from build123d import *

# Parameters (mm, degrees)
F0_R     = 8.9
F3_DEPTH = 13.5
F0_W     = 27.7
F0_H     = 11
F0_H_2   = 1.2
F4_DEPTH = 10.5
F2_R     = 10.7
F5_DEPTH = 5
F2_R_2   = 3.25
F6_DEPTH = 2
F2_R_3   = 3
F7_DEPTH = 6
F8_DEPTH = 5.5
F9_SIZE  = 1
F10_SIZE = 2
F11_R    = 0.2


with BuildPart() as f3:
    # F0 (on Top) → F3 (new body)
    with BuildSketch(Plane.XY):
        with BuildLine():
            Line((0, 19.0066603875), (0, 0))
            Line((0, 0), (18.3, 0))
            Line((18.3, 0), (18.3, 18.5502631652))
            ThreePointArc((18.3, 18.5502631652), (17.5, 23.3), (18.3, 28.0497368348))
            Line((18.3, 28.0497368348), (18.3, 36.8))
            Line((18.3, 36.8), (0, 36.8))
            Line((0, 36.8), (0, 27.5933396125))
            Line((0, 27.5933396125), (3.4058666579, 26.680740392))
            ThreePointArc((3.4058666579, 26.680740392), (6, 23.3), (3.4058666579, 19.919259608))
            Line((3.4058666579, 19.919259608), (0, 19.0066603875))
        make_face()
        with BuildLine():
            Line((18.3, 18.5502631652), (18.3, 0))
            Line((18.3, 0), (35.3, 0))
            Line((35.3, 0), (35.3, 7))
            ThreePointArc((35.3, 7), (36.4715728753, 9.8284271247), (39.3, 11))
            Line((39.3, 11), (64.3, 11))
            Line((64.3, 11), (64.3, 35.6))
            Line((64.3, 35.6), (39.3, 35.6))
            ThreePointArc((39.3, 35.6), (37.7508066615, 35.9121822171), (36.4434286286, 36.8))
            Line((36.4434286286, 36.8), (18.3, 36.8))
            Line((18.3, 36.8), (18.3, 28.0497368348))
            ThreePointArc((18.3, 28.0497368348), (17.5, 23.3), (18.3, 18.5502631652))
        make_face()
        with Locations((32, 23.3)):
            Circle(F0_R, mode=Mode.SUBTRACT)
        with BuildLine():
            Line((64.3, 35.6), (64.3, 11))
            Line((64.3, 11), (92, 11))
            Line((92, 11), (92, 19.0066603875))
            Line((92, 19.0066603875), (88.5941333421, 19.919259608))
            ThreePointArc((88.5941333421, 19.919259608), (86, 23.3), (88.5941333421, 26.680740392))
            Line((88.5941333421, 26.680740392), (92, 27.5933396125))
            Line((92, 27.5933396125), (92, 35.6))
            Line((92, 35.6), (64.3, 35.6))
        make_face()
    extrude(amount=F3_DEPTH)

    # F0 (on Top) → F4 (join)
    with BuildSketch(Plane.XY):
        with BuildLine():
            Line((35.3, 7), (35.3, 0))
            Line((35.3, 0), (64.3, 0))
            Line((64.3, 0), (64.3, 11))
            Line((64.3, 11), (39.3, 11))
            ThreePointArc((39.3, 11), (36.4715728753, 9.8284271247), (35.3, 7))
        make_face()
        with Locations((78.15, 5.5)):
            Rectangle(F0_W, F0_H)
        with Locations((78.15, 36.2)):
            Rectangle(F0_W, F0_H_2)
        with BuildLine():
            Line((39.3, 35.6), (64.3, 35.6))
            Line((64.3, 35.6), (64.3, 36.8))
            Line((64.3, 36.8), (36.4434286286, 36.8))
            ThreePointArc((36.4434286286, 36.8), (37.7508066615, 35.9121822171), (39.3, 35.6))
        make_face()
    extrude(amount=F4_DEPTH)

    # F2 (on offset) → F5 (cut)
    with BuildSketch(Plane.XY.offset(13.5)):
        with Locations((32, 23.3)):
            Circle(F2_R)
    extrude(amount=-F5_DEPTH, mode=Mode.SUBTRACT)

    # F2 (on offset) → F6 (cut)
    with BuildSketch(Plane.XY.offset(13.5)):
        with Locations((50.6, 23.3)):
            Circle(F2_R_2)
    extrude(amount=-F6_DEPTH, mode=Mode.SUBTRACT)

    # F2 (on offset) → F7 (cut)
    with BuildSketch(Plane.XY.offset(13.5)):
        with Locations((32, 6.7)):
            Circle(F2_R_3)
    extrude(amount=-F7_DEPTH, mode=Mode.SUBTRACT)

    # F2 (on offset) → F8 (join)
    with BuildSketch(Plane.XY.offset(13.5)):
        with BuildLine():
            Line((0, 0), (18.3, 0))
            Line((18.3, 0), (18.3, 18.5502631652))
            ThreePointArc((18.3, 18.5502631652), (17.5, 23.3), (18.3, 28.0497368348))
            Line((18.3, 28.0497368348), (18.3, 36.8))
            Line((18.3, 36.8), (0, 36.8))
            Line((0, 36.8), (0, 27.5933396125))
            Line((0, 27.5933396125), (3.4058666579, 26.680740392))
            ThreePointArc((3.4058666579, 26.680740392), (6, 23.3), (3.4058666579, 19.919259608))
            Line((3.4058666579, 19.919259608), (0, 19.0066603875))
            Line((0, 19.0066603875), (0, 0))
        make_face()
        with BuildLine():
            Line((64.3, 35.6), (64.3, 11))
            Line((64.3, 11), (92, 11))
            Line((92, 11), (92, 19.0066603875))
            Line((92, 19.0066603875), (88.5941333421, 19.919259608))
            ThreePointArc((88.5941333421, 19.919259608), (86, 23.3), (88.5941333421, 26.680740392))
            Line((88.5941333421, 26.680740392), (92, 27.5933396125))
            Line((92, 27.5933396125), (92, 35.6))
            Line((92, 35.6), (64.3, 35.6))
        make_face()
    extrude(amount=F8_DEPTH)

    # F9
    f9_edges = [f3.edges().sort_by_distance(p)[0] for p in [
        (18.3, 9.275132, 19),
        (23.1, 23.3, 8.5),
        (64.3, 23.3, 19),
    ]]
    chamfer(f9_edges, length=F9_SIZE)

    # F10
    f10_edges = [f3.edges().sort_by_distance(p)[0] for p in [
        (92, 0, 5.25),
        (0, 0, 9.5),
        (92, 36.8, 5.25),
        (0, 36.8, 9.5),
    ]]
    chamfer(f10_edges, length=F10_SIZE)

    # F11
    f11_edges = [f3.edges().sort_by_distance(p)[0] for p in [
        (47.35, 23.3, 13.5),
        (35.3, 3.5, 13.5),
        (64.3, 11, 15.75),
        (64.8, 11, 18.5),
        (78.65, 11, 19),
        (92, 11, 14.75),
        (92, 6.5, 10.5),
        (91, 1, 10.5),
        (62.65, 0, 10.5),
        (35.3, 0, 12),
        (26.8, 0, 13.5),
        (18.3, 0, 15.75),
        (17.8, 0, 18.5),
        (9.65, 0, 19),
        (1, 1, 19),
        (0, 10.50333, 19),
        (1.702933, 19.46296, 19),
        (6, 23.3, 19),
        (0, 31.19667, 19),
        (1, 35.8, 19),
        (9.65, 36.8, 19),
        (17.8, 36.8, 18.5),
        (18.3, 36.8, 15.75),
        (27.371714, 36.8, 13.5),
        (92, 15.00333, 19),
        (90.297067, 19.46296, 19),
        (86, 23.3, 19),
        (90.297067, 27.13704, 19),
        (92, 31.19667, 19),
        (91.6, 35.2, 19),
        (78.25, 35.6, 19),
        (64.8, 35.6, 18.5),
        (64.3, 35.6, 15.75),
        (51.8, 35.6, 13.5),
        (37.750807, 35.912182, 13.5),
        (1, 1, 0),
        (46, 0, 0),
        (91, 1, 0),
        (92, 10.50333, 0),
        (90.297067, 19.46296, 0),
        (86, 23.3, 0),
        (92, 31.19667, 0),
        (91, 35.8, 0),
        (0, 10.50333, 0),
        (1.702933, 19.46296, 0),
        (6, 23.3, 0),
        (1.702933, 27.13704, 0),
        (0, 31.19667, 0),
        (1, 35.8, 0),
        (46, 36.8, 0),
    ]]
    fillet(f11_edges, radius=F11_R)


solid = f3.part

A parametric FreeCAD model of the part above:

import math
import FreeCAD as App
import Part
import Sketcher

V = App.Vector
Q = App.Units.Quantity


def edges_at(feature, points):
    """Names of the edges that pass closest to the given points."""
    edges = feature.Shape.Edges
    near = lambda p: min(range(len(edges)), key=lambda i: edges[i].distToShape(Part.Vertex(*p))[0])
    return sorted({f"Edge{near(p) + 1}" for p in points})

doc = App.newDocument("Part")
params = doc.addObject("Spreadsheet::Sheet", "Params")
for row, (alias, value) in enumerate([
    ("sketch1_radius", "4 mm"),
    ("sketch1_diameter", "17.8 mm"),
    ("sketch1_radius2", "3.5 mm"),
    ("sketch1_height", "7 mm"),
    ("sketch1_width", "35.3 mm"),
    ("pad1_length", "13.5 mm"),
    ("sketch2_radius", "4 mm"),
    ("sketch2_height", "7 mm"),
    ("sketch2_width", "56.7 mm"),
    ("sketch2_height2", "1.2 mm"),
    ("pad2_length", "10.5 mm"),
    ("sketch3_diameter", "21.4 mm"),
    ("pocket1_length", "5 mm"),
    ("sketch4_diameter", "6.5 mm"),
    ("pocket2_length", "2 mm"),
    ("sketch5_diameter", "6 mm"),
    ("pocket3_length", "6 mm"),
    ("sketch6_radius", "14.5 mm"),
    ("sketch6_radius2", "3.5 mm"),
    ("sketch6_width", "18.3 mm"),
    ("sketch6_width2", "27.7 mm"),
    ("sketch6_height", "24.6 mm"),
    ("pad3_length", "5.5 mm"),
    ("chamfer_size", "1 mm"),
    ("chamfer2_size", "2 mm"),
    ("fillet_radius", "0.2 mm"),
], start=1):
    params.set(f"A{row}", alias)
    params.set(f"B{row}", "=" + value)
    params.setAlias(f"B{row}", alias)

body = doc.addObject("PartDesign::Body", "Body")

# Sketch on XY plane
sketch1 = doc.addObject("Sketcher::SketchObject", "Sketch")
body.addObject(sketch1)
sketch1.AttachmentSupport = (doc.XY_Plane, [""])
sketch1.MapMode = "FlatFace"
sketch1.addGeometry(Part.LineSegment(V(0, 19, 0), V(0, 0, 0)), False)
sketch1.addGeometry(Part.LineSegment(V(0, 0, 0), V(35.3, 0, 0)), False)
sketch1.addGeometry(Part.LineSegment(V(35.3, 0, 0), V(35.3, 7, 0)), False)
sketch1.addGeometry(Part.ArcOfCircle(Part.Circle(V(39.3, 7, 0), V(0, 0, 1), 4), math.radians(90), math.radians(180)), False)
sketch1.addGeometry(Part.LineSegment(V(39.3, 11, 0), V(92, 11, 0)), False)
sketch1.addGeometry(Part.LineSegment(V(92, 11, 0), V(92, 19, 0)), False)
sketch1.addGeometry(Part.LineSegment(V(92, 19, 0), V(88.6, 19.9, 0)), False)
sketch1.addGeometry(Part.ArcOfCircle(Part.Circle(V(89.5, 23.3, 0), V(0, 0, 1), 3.5), math.radians(105), math.radians(255)), False)
sketch1.addGeometry(Part.LineSegment(V(88.6, 26.7, 0), V(92, 27.6, 0)), False)
sketch1.addGeometry(Part.LineSegment(V(92, 27.6, 0), V(92, 35.6, 0)), False)
sketch1.addGeometry(Part.LineSegment(V(92, 35.6, 0), V(39.3, 35.6, 0)), False)
sketch1.addGeometry(Part.ArcOfCircle(Part.Circle(V(39.3, 39.6, 0), V(0, 0, 1), 4), math.radians(-136), math.radians(-90)), False)
sketch1.addGeometry(Part.LineSegment(V(36.4, 36.8, 0), V(0, 36.8, 0)), False)
sketch1.addGeometry(Part.LineSegment(V(0, 36.8, 0), V(0, 27.6, 0)), False)
sketch1.addGeometry(Part.LineSegment(V(0, 27.6, 0), V(3.4, 26.7, 0)), False)
sketch1.addGeometry(Part.ArcOfCircle(Part.Circle(V(2.5, 23.3, 0), V(0, 0, 1), 3.5), math.radians(-75), math.radians(75)), False)
sketch1.addGeometry(Part.LineSegment(V(3.4, 19.9, 0), V(0, 19, 0)), False)
sketch1.addGeometry(Part.Circle(V(32, 23.3, 0), V(0, 0, 1), 8.9), False)
sketch1.addConstraint(Sketcher.Constraint("Coincident", 0, 2, 1, 1))
sketch1.addConstraint(Sketcher.Constraint("Coincident", 1, 2, 2, 1))
sketch1.addConstraint(Sketcher.Constraint("Tangent", 2, 2, 3, 2))
sketch1.addConstraint(Sketcher.Constraint("Tangent", 3, 1, 4, 1))
sketch1.addConstraint(Sketcher.Constraint("Coincident", 4, 2, 5, 1))
sketch1.addConstraint(Sketcher.Constraint("Coincident", 5, 2, 6, 1))
sketch1.addConstraint(Sketcher.Constraint("Tangent", 6, 2, 7, 2))
sketch1.addConstraint(Sketcher.Constraint("Tangent", 7, 1, 8, 1))
sketch1.addConstraint(Sketcher.Constraint("Coincident", 8, 2, 9, 1))
sketch1.addConstraint(Sketcher.Constraint("Coincident", 9, 2, 10, 1))
sketch1.addConstraint(Sketcher.Constraint("Tangent", 10, 2, 11, 2))
sketch1.addConstraint(Sketcher.Constraint("Coincident", 11, 1, 12, 1))
sketch1.addConstraint(Sketcher.Constraint("Coincident", 12, 2, 13, 1))
sketch1.addConstraint(Sketcher.Constraint("Coincident", 13, 2, 14, 1))
sketch1.addConstraint(Sketcher.Constraint("Tangent", 14, 2, 15, 2))
sketch1.addConstraint(Sketcher.Constraint("Tangent", 15, 1, 16, 1))
sketch1.addConstraint(Sketcher.Constraint("Coincident", 16, 2, 0, 1))
sketch1.addConstraint(Sketcher.Constraint("Vertical", 0))
sketch1.addConstraint(Sketcher.Constraint("Horizontal", 1))
sketch1.addConstraint(Sketcher.Constraint("Vertical", 2))
sketch1.addConstraint(Sketcher.Constraint("Horizontal", 4))
sketch1.addConstraint(Sketcher.Constraint("Vertical", 5))
sketch1.addConstraint(Sketcher.Constraint("Vertical", 9))
sketch1.addConstraint(Sketcher.Constraint("Horizontal", 10))
sketch1.addConstraint(Sketcher.Constraint("Horizontal", 12))
sketch1.addConstraint(Sketcher.Constraint("Vertical", 13))
sketch1.addConstraint(Sketcher.Constraint("Coincident", 0, 2, -1, 1))
sketch1.addConstraint(Sketcher.Constraint("Equal", 3, 11))
sketch1.addConstraint(Sketcher.Constraint("Equal", 7, 15))
sketch1.addConstraint(Sketcher.Constraint("PointOnObject", 12, 2, -2))
sketch1.addConstraint(Sketcher.Constraint("Parallel", 6, 14))
sketch1.addConstraint(Sketcher.Constraint("Parallel", 8, 16))
sketch1.addConstraint(Sketcher.Constraint("Horizontal", 7, 3, 15, 3))
sketch1.addConstraint(Sketcher.Constraint("Horizontal", 15, 3, 17, 3))
sketch1.addConstraint(Sketcher.Constraint("Horizontal", 8, 2, 13, 2))
sketch1.addConstraint(Sketcher.Constraint("Horizontal", 7, 1, 14, 2))
sketch1.addConstraint(Sketcher.Constraint("Horizontal", 5, 2, 16, 2))
sketch1.addConstraint(Sketcher.Constraint("Vertical", 3, 3, 11, 3))
sketch1.addConstraint(Sketcher.Constraint("Equal", 5, 9))
sketch1.addConstraint(Sketcher.Constraint("Radius", 3, Q("4 mm")))
sketch1.addConstraint(Sketcher.Constraint("Diameter", 17, Q("17.8 mm")))
sketch1.addConstraint(Sketcher.Constraint("Radius", 7, Q("3.5 mm")))
sketch1.addConstraint(Sketcher.Constraint("DistanceY", 2, 1, 2, 2, Q("7 mm")))
sketch1.addConstraint(Sketcher.Constraint("Angle", 6, Q("165 deg")))
sketch1.addConstraint(Sketcher.Constraint("DistanceX", 1, 1, 1, 2, Q("35.3 mm")))
sketch1.addConstraint(Sketcher.Constraint("DistanceX", 4, 1, 4, 2, Q("52.7 mm")))
sketch1.addConstraint(Sketcher.Constraint("DistanceX", -1, 1, 17, 3, Q("32 mm")))
sketch1.addConstraint(Sketcher.Constraint("DistanceX", 15, 3, 7, 3, Q("87 mm")))
sketch1.addConstraint(Sketcher.Constraint("DistanceY", -1, 1, 7, 3, Q("23.3 mm")))
sketch1.addConstraint(Sketcher.Constraint("DistanceY", -1, 1, 11, 1, Q("36.8 mm")))
sketch1.setExpression("Constraints[39]", "Params.sketch1_radius")
sketch1.setExpression("Constraints[40]", "Params.sketch1_diameter")
sketch1.setExpression("Constraints[41]", "Params.sketch1_radius2")
sketch1.setExpression("Constraints[42]", "Params.sketch1_height")
sketch1.setExpression("Constraints[44]", "Params.sketch1_width")
pad1 = doc.addObject("PartDesign::Pad", "Pad")
body.addObject(pad1)
pad1.Profile = sketch1
pad1.setExpression("Length", "Params.pad1_length")

# Sketch on XY plane
sketch2 = doc.addObject("Sketcher::SketchObject", "Sketch001")
body.addObject(sketch2)
sketch2.AttachmentSupport = (doc.XY_Plane, [""])
sketch2.MapMode = "FlatFace"
sketch2.addGeometry(Part.LineSegment(V(35.3, 7, 0), V(35.3, 0, 0)), False)
sketch2.addGeometry(Part.LineSegment(V(35.3, 0, 0), V(92, 0, 0)), False)
sketch2.addGeometry(Part.LineSegment(V(92, 0, 0), V(92, 11, 0)), False)
sketch2.addGeometry(Part.LineSegment(V(92, 11, 0), V(39.3, 11, 0)), False)
sketch2.addGeometry(Part.ArcOfCircle(Part.Circle(V(39.3, 7, 0), V(0, 0, 1), 4), math.radians(90), math.radians(180)), False)
sketch2.addGeometry(Part.LineSegment(V(92, 35.6, 0), V(92, 36.8, 0)), False)
sketch2.addGeometry(Part.LineSegment(V(92, 36.8, 0), V(36.4, 36.8, 0)), False)
sketch2.addGeometry(Part.ArcOfCircle(Part.Circle(V(39.3, 39.6, 0), V(0, 0, 1), 4), math.radians(-136), math.radians(-90)), False)
sketch2.addGeometry(Part.LineSegment(V(39.3, 35.6, 0), V(92, 35.6, 0)), False)
sketch2.addConstraint(Sketcher.Constraint("Coincident", 0, 2, 1, 1))
sketch2.addConstraint(Sketcher.Constraint("Coincident", 1, 2, 2, 1))
sketch2.addConstraint(Sketcher.Constraint("Coincident", 2, 2, 3, 1))
sketch2.addConstraint(Sketcher.Constraint("Tangent", 3, 2, 4, 1))
sketch2.addConstraint(Sketcher.Constraint("Tangent", 4, 2, 0, 1))
sketch2.addConstraint(Sketcher.Constraint("Coincident", 5, 2, 6, 1))
sketch2.addConstraint(Sketcher.Constraint("Coincident", 6, 2, 7, 1))
sketch2.addConstraint(Sketcher.Constraint("Tangent", 7, 2, 8, 1))
sketch2.addConstraint(Sketcher.Constraint("Coincident", 8, 2, 5, 1))
sketch2.addConstraint(Sketcher.Constraint("Vertical", 0))
sketch2.addConstraint(Sketcher.Constraint("Horizontal", 1))
sketch2.addConstraint(Sketcher.Constraint("Vertical", 2))
sketch2.addConstraint(Sketcher.Constraint("Horizontal", 3))
sketch2.addConstraint(Sketcher.Constraint("Vertical", 5))
sketch2.addConstraint(Sketcher.Constraint("Horizontal", 6))
sketch2.addConstraint(Sketcher.Constraint("Horizontal", 8))
sketch2.addConstraint(Sketcher.Constraint("Equal", 4, 7))
sketch2.addConstraint(Sketcher.Constraint("PointOnObject", 0, 2, -1))
sketch2.addConstraint(Sketcher.Constraint("Vertical", 4, 3, 7, 3))
sketch2.addConstraint(Sketcher.Constraint("Vertical", 2, 2, 5, 2))
sketch2.addConstraint(Sketcher.Constraint("Radius", 4, Q("4 mm")))
sketch2.addConstraint(Sketcher.Constraint("DistanceY", 0, 2, 0, 1, Q("7 mm")))
sketch2.addConstraint(Sketcher.Constraint("DistanceX", 1, 1, 1, 2, Q("56.7 mm")))
sketch2.addConstraint(Sketcher.Constraint("DistanceY", 5, 1, 5, 2, Q("1.2 mm")))
sketch2.addConstraint(Sketcher.Constraint("DistanceX", -1, 1, 1, 2, Q("92 mm")))
sketch2.addConstraint(Sketcher.Constraint("DistanceY", -1, 1, 7, 3, Q("39.6 mm")))
sketch2.setExpression("Constraints[20]", "Params.sketch2_radius")
sketch2.setExpression("Constraints[21]", "Params.sketch2_height")
sketch2.setExpression("Constraints[22]", "Params.sketch2_width")
sketch2.setExpression("Constraints[23]", "Params.sketch2_height2")
pad2 = doc.addObject("PartDesign::Pad", "Pad001")
body.addObject(pad2)
pad2.Profile = sketch2
pad2.setExpression("Length", "Params.pad2_length")

# Sketch on XY plane
sketch3 = doc.addObject("Sketcher::SketchObject", "Sketch002")
body.addObject(sketch3)
sketch3.AttachmentSupport = (doc.XY_Plane, [""])
sketch3.MapMode = "FlatFace"
sketch3.AttachmentOffset = App.Placement(V(0, 0, 13.5), App.Rotation())
sketch3.addGeometry(Part.Circle(V(32, 23, 0), V(0, 0, 1), 11), False)
sketch3.addConstraint(Sketcher.Constraint("Diameter", 0, Q("21.4 mm")))
sketch3.addConstraint(Sketcher.Constraint("DistanceX", -1, 1, 0, 3, Q("32 mm")))
sketch3.addConstraint(Sketcher.Constraint("DistanceY", -1, 1, 0, 3, Q("23.3 mm")))
sketch3.setExpression("Constraints[0]", "Params.sketch3_diameter")
pocket1 = doc.addObject("PartDesign::Pocket", "Pocket")
body.addObject(pocket1)
pocket1.Profile = sketch3
pocket1.setExpression("Length", "Params.pocket1_length")

# Sketch on XY plane
sketch4 = doc.addObject("Sketcher::SketchObject", "Sketch003")
body.addObject(sketch4)
sketch4.AttachmentSupport = (doc.XY_Plane, [""])
sketch4.MapMode = "FlatFace"
sketch4.AttachmentOffset = App.Placement(V(0, 0, 13.5), App.Rotation())
sketch4.addGeometry(Part.Circle(V(50.6, 23.3, 0), V(0, 0, 1), 3.2), False)
sketch4.addConstraint(Sketcher.Constraint("Diameter", 0, Q("6.5 mm")))
sketch4.addConstraint(Sketcher.Constraint("DistanceX", -1, 1, 0, 3, Q("50.6 mm")))
sketch4.addConstraint(Sketcher.Constraint("DistanceY", -1, 1, 0, 3, Q("23.3 mm")))
sketch4.setExpression("Constraints[0]", "Params.sketch4_diameter")
pocket2 = doc.addObject("PartDesign::Pocket", "Pocket001")
body.addObject(pocket2)
pocket2.Profile = sketch4
pocket2.setExpression("Length", "Params.pocket2_length")

# Sketch on XY plane
sketch5 = doc.addObject("Sketcher::SketchObject", "Sketch004")
body.addObject(sketch5)
sketch5.AttachmentSupport = (doc.XY_Plane, [""])
sketch5.MapMode = "FlatFace"
sketch5.AttachmentOffset = App.Placement(V(0, 0, 13.5), App.Rotation())
sketch5.addGeometry(Part.Circle(V(32, 6.7, 0), V(0, 0, 1), 3), False)
sketch5.addConstraint(Sketcher.Constraint("Diameter", 0, Q("6 mm")))
sketch5.addConstraint(Sketcher.Constraint("DistanceX", -1, 1, 0, 3, Q("32 mm")))
sketch5.addConstraint(Sketcher.Constraint("DistanceY", -1, 1, 0, 3, Q("6.7 mm")))
sketch5.setExpression("Constraints[0]", "Params.sketch5_diameter")
pocket3 = doc.addObject("PartDesign::Pocket", "Pocket002")
body.addObject(pocket3)
pocket3.Profile = sketch5
pocket3.setExpression("Length", "Params.pocket3_length")

# Sketch on XY plane
sketch6 = doc.addObject("Sketcher::SketchObject", "Sketch005")
body.addObject(sketch6)
sketch6.AttachmentSupport = (doc.XY_Plane, [""])
sketch6.MapMode = "FlatFace"
sketch6.AttachmentOffset = App.Placement(V(0, 0, 13.5), App.Rotation())
sketch6.addGeometry(Part.LineSegment(V(0, 0, 0), V(18.3, 0, 0)), False)
sketch6.addGeometry(Part.LineSegment(V(18.3, 0, 0), V(18.3, 18.6, 0)), False)
sketch6.addGeometry(Part.ArcOfCircle(Part.Circle(V(32, 23.3, 0), V(0, 0, 1), 14.5), math.radians(161), math.radians(199)), False)
sketch6.addGeometry(Part.LineSegment(V(18.3, 28, 0), V(18.3, 36.8, 0)), False)
sketch6.addGeometry(Part.LineSegment(V(18.3, 36.8, 0), V(0, 36.8, 0)), False)
sketch6.addGeometry(Part.LineSegment(V(0, 36.8, 0), V(0, 27.6, 0)), False)
sketch6.addGeometry(Part.LineSegment(V(0, 27.6, 0), V(3.4, 26.7, 0)), False)
sketch6.addGeometry(Part.ArcOfCircle(Part.Circle(V(2.5, 23.3, 0), V(0, 0, 1), 3.5), math.radians(-75), math.radians(75)), False)
sketch6.addGeometry(Part.LineSegment(V(3.4, 19.9, 0), V(0, 19, 0)), False)
sketch6.addGeometry(Part.LineSegment(V(0, 19, 0), V(0, 0, 0)), False)
sketch6.addGeometry(Part.LineSegment(V(64.3, 35.6, 0), V(64.3, 11, 0)), False)
sketch6.addGeometry(Part.LineSegment(V(64.3, 11, 0), V(92, 11, 0)), False)
sketch6.addGeometry(Part.LineSegment(V(92, 11, 0), V(92, 19, 0)), False)
sketch6.addGeometry(Part.LineSegment(V(92, 19, 0), V(88.6, 19.9, 0)), False)
sketch6.addGeometry(Part.ArcOfCircle(Part.Circle(V(89.5, 23.3, 0), V(0, 0, 1), 3.5), math.radians(105), math.radians(255)), False)
sketch6.addGeometry(Part.LineSegment(V(88.6, 26.7, 0), V(92, 27.6, 0)), False)
sketch6.addGeometry(Part.LineSegment(V(92, 27.6, 0), V(92, 35.6, 0)), False)
sketch6.addGeometry(Part.LineSegment(V(92, 35.6, 0), V(64.3, 35.6, 0)), False)
sketch6.addConstraint(Sketcher.Constraint("Coincident", 0, 2, 1, 1))
sketch6.addConstraint(Sketcher.Constraint("Coincident", 1, 2, 2, 2))
sketch6.addConstraint(Sketcher.Constraint("Coincident", 2, 1, 3, 1))
sketch6.addConstraint(Sketcher.Constraint("Coincident", 3, 2, 4, 1))
sketch6.addConstraint(Sketcher.Constraint("Coincident", 4, 2, 5, 1))
sketch6.addConstraint(Sketcher.Constraint("Coincident", 5, 2, 6, 1))
sketch6.addConstraint(Sketcher.Constraint("Tangent", 6, 2, 7, 2))
sketch6.addConstraint(Sketcher.Constraint("Tangent", 7, 1, 8, 1))
sketch6.addConstraint(Sketcher.Constraint("Coincident", 8, 2, 9, 1))
sketch6.addConstraint(Sketcher.Constraint("Coincident", 9, 2, 0, 1))
sketch6.addConstraint(Sketcher.Constraint("Coincident", 10, 2, 11, 1))
sketch6.addConstraint(Sketcher.Constraint("Coincident", 11, 2, 12, 1))
sketch6.addConstraint(Sketcher.Constraint("Coincident", 12, 2, 13, 1))
sketch6.addConstraint(Sketcher.Constraint("Tangent", 13, 2, 14, 2))
sketch6.addConstraint(Sketcher.Constraint("Tangent", 14, 1, 15, 1))
sketch6.addConstraint(Sketcher.Constraint("Coincident", 15, 2, 16, 1))
sketch6.addConstraint(Sketcher.Constraint("Coincident", 16, 2, 17, 1))
sketch6.addConstraint(Sketcher.Constraint("Coincident", 17, 2, 10, 1))
sketch6.addConstraint(Sketcher.Constraint("Horizontal", 0))
sketch6.addConstraint(Sketcher.Constraint("Vertical", 1))
sketch6.addConstraint(Sketcher.Constraint("Vertical", 3))
sketch6.addConstraint(Sketcher.Constraint("Horizontal", 4))
sketch6.addConstraint(Sketcher.Constraint("Vertical", 5))
sketch6.addConstraint(Sketcher.Constraint("Vertical", 9))
sketch6.addConstraint(Sketcher.Constraint("Vertical", 10))
sketch6.addConstraint(Sketcher.Constraint("Horizontal", 11))
sketch6.addConstraint(Sketcher.Constraint("Vertical", 12))
sketch6.addConstraint(Sketcher.Constraint("Vertical", 16))
sketch6.addConstraint(Sketcher.Constraint("Horizontal", 17))
sketch6.addConstraint(Sketcher.Constraint("Coincident", 9, 2, -1, 1))
sketch6.addConstraint(Sketcher.Constraint("Equal", 7, 14))
sketch6.addConstraint(Sketcher.Constraint("PointOnObject", 4, 2, -2))
sketch6.addConstraint(Sketcher.Constraint("Parallel", 6, 13))
sketch6.addConstraint(Sketcher.Constraint("Parallel", 8, 15))
sketch6.addConstraint(Sketcher.Constraint("Horizontal", 2, 3, 7, 3))
sketch6.addConstraint(Sketcher.Constraint("Horizontal", 7, 3, 14, 3))
sketch6.addConstraint(Sketcher.Constraint("Horizontal", 8, 2, 12, 2))
sketch6.addConstraint(Sketcher.Constraint("Horizontal", 7, 1, 13, 2))
sketch6.addConstraint(Sketcher.Constraint("Horizontal", 5, 2, 15, 2))
sketch6.addConstraint(Sketcher.Constraint("Vertical", 1, 2, 2, 1))
sketch6.addConstraint(Sketcher.Constraint("Equal", 12, 16))
sketch6.addConstraint(Sketcher.Constraint("Radius", 2, Q("14.5 mm")))
sketch6.addConstraint(Sketcher.Constraint("Radius", 7, Q("3.5 mm")))
sketch6.addConstraint(Sketcher.Constraint("Angle", 6, Q("-15 deg")))
sketch6.addConstraint(Sketcher.Constraint("DistanceX", 0, 1, 0, 2, Q("18.3 mm")))
sketch6.addConstraint(Sketcher.Constraint("DistanceX", 11, 1, 11, 2, Q("27.7 mm")))
sketch6.addConstraint(Sketcher.Constraint("DistanceY", 10, 2, 10, 1, Q("24.6 mm")))
sketch6.addConstraint(Sketcher.Constraint("DistanceX", -1, 1, 2, 3, Q("32 mm")))
sketch6.addConstraint(Sketcher.Constraint("DistanceY", -1, 1, 10, 2, Q("11 mm")))
sketch6.addConstraint(Sketcher.Constraint("DistanceX", -1, 1, 11, 2, Q("92 mm")))
sketch6.addConstraint(Sketcher.Constraint("DistanceX", 7, 3, 14, 3, Q("87 mm")))
sketch6.addConstraint(Sketcher.Constraint("DistanceY", -1, 1, 3, 2, Q("36.8 mm")))
sketch6.setExpression("Constraints[41]", "Params.sketch6_radius")
sketch6.setExpression("Constraints[42]", "Params.sketch6_radius2")
sketch6.setExpression("Constraints[44]", "Params.sketch6_width")
sketch6.setExpression("Constraints[45]", "Params.sketch6_width2")
sketch6.setExpression("Constraints[46]", "Params.sketch6_height")
pad3 = doc.addObject("PartDesign::Pad", "Pad002")
body.addObject(pad3)
pad3.Profile = sketch6
pad3.setExpression("Length", "Params.pad3_length")
doc.recompute()

chamfer = doc.addObject("PartDesign::Chamfer", "Chamfer")
body.addObject(chamfer)
chamfer.Base = (pad3, edges_at(pad3, [(18.3, 9.275, 19), (23.1, 23.3, 8.5), (64.3, 23.3, 19)]))
chamfer.setExpression("Size", "Params.chamfer_size")
doc.recompute()

chamfer2 = doc.addObject("PartDesign::Chamfer", "Chamfer001")
body.addObject(chamfer2)
chamfer2.Base = (chamfer, edges_at(chamfer, [
    (92, 0, 5.25),
    (0, 0, 9.5),
    (92, 36.8, 5.25),
    (0, 36.8, 9.5),
]))
chamfer2.setExpression("Size", "Params.chamfer2_size")
doc.recompute()

fillet = doc.addObject("PartDesign::Fillet", "Fillet")
body.addObject(fillet)
fillet.Base = (chamfer2, edges_at(chamfer2, [
    (47.35, 23.3, 13.5),
    (35.3, 3.5, 13.5),
    (64.3, 11, 15.75),
    (64.8, 11, 18.5),
    (78.65, 11, 19),
    (92, 11, 14.75),
    (92, 6.5, 10.5),
    (91, 1, 10.5),
    (62.65, 0, 10.5),
    (35.3, 0, 12),
    (26.8, 0, 13.5),
    (18.3, 0, 15.75),
    (17.8, 0, 18.5),
    (9.65, 0, 19),
    (1, 1, 19),
    (0, 10.503, 19),
    (1.703, 19.463, 19),
    (6, 23.3, 19),
    (0, 31.197, 19),
    (1, 35.8, 19),
    (9.65, 36.8, 19),
    (17.8, 36.8, 18.5),
    (18.3, 36.8, 15.75),
    (27.372, 36.8, 13.5),
    (92, 15.003, 19),
    (90.297, 19.463, 19),
    (86, 23.3, 19),
    (90.297, 27.137, 19),
    (92, 31.197, 19),
    (91.6, 35.2, 19),
    (78.25, 35.6, 19),
    (64.8, 35.6, 18.5),
    (64.3, 35.6, 15.75),
    (51.8, 35.6, 13.5),
    (37.751, 35.912, 13.5),
    (1, 1, 0),
    (46, 0, 0),
    (91, 1, 0),
    (92, 10.503, 0),
    (90.297, 19.463, 0),
    (86, 23.3, 0),
    (92, 31.197, 0),
    (91, 35.8, 0),
    (0, 10.503, 0),
    (1.703, 19.463, 0),
    (6, 23.3, 0),
    (1.703, 27.137, 0),
    (0, 31.197, 0),
    (1, 35.8, 0),
    (46, 36.8, 0),
]))
fillet.setExpression("Radius", "Params.fillet_radius")

doc.recompute()
